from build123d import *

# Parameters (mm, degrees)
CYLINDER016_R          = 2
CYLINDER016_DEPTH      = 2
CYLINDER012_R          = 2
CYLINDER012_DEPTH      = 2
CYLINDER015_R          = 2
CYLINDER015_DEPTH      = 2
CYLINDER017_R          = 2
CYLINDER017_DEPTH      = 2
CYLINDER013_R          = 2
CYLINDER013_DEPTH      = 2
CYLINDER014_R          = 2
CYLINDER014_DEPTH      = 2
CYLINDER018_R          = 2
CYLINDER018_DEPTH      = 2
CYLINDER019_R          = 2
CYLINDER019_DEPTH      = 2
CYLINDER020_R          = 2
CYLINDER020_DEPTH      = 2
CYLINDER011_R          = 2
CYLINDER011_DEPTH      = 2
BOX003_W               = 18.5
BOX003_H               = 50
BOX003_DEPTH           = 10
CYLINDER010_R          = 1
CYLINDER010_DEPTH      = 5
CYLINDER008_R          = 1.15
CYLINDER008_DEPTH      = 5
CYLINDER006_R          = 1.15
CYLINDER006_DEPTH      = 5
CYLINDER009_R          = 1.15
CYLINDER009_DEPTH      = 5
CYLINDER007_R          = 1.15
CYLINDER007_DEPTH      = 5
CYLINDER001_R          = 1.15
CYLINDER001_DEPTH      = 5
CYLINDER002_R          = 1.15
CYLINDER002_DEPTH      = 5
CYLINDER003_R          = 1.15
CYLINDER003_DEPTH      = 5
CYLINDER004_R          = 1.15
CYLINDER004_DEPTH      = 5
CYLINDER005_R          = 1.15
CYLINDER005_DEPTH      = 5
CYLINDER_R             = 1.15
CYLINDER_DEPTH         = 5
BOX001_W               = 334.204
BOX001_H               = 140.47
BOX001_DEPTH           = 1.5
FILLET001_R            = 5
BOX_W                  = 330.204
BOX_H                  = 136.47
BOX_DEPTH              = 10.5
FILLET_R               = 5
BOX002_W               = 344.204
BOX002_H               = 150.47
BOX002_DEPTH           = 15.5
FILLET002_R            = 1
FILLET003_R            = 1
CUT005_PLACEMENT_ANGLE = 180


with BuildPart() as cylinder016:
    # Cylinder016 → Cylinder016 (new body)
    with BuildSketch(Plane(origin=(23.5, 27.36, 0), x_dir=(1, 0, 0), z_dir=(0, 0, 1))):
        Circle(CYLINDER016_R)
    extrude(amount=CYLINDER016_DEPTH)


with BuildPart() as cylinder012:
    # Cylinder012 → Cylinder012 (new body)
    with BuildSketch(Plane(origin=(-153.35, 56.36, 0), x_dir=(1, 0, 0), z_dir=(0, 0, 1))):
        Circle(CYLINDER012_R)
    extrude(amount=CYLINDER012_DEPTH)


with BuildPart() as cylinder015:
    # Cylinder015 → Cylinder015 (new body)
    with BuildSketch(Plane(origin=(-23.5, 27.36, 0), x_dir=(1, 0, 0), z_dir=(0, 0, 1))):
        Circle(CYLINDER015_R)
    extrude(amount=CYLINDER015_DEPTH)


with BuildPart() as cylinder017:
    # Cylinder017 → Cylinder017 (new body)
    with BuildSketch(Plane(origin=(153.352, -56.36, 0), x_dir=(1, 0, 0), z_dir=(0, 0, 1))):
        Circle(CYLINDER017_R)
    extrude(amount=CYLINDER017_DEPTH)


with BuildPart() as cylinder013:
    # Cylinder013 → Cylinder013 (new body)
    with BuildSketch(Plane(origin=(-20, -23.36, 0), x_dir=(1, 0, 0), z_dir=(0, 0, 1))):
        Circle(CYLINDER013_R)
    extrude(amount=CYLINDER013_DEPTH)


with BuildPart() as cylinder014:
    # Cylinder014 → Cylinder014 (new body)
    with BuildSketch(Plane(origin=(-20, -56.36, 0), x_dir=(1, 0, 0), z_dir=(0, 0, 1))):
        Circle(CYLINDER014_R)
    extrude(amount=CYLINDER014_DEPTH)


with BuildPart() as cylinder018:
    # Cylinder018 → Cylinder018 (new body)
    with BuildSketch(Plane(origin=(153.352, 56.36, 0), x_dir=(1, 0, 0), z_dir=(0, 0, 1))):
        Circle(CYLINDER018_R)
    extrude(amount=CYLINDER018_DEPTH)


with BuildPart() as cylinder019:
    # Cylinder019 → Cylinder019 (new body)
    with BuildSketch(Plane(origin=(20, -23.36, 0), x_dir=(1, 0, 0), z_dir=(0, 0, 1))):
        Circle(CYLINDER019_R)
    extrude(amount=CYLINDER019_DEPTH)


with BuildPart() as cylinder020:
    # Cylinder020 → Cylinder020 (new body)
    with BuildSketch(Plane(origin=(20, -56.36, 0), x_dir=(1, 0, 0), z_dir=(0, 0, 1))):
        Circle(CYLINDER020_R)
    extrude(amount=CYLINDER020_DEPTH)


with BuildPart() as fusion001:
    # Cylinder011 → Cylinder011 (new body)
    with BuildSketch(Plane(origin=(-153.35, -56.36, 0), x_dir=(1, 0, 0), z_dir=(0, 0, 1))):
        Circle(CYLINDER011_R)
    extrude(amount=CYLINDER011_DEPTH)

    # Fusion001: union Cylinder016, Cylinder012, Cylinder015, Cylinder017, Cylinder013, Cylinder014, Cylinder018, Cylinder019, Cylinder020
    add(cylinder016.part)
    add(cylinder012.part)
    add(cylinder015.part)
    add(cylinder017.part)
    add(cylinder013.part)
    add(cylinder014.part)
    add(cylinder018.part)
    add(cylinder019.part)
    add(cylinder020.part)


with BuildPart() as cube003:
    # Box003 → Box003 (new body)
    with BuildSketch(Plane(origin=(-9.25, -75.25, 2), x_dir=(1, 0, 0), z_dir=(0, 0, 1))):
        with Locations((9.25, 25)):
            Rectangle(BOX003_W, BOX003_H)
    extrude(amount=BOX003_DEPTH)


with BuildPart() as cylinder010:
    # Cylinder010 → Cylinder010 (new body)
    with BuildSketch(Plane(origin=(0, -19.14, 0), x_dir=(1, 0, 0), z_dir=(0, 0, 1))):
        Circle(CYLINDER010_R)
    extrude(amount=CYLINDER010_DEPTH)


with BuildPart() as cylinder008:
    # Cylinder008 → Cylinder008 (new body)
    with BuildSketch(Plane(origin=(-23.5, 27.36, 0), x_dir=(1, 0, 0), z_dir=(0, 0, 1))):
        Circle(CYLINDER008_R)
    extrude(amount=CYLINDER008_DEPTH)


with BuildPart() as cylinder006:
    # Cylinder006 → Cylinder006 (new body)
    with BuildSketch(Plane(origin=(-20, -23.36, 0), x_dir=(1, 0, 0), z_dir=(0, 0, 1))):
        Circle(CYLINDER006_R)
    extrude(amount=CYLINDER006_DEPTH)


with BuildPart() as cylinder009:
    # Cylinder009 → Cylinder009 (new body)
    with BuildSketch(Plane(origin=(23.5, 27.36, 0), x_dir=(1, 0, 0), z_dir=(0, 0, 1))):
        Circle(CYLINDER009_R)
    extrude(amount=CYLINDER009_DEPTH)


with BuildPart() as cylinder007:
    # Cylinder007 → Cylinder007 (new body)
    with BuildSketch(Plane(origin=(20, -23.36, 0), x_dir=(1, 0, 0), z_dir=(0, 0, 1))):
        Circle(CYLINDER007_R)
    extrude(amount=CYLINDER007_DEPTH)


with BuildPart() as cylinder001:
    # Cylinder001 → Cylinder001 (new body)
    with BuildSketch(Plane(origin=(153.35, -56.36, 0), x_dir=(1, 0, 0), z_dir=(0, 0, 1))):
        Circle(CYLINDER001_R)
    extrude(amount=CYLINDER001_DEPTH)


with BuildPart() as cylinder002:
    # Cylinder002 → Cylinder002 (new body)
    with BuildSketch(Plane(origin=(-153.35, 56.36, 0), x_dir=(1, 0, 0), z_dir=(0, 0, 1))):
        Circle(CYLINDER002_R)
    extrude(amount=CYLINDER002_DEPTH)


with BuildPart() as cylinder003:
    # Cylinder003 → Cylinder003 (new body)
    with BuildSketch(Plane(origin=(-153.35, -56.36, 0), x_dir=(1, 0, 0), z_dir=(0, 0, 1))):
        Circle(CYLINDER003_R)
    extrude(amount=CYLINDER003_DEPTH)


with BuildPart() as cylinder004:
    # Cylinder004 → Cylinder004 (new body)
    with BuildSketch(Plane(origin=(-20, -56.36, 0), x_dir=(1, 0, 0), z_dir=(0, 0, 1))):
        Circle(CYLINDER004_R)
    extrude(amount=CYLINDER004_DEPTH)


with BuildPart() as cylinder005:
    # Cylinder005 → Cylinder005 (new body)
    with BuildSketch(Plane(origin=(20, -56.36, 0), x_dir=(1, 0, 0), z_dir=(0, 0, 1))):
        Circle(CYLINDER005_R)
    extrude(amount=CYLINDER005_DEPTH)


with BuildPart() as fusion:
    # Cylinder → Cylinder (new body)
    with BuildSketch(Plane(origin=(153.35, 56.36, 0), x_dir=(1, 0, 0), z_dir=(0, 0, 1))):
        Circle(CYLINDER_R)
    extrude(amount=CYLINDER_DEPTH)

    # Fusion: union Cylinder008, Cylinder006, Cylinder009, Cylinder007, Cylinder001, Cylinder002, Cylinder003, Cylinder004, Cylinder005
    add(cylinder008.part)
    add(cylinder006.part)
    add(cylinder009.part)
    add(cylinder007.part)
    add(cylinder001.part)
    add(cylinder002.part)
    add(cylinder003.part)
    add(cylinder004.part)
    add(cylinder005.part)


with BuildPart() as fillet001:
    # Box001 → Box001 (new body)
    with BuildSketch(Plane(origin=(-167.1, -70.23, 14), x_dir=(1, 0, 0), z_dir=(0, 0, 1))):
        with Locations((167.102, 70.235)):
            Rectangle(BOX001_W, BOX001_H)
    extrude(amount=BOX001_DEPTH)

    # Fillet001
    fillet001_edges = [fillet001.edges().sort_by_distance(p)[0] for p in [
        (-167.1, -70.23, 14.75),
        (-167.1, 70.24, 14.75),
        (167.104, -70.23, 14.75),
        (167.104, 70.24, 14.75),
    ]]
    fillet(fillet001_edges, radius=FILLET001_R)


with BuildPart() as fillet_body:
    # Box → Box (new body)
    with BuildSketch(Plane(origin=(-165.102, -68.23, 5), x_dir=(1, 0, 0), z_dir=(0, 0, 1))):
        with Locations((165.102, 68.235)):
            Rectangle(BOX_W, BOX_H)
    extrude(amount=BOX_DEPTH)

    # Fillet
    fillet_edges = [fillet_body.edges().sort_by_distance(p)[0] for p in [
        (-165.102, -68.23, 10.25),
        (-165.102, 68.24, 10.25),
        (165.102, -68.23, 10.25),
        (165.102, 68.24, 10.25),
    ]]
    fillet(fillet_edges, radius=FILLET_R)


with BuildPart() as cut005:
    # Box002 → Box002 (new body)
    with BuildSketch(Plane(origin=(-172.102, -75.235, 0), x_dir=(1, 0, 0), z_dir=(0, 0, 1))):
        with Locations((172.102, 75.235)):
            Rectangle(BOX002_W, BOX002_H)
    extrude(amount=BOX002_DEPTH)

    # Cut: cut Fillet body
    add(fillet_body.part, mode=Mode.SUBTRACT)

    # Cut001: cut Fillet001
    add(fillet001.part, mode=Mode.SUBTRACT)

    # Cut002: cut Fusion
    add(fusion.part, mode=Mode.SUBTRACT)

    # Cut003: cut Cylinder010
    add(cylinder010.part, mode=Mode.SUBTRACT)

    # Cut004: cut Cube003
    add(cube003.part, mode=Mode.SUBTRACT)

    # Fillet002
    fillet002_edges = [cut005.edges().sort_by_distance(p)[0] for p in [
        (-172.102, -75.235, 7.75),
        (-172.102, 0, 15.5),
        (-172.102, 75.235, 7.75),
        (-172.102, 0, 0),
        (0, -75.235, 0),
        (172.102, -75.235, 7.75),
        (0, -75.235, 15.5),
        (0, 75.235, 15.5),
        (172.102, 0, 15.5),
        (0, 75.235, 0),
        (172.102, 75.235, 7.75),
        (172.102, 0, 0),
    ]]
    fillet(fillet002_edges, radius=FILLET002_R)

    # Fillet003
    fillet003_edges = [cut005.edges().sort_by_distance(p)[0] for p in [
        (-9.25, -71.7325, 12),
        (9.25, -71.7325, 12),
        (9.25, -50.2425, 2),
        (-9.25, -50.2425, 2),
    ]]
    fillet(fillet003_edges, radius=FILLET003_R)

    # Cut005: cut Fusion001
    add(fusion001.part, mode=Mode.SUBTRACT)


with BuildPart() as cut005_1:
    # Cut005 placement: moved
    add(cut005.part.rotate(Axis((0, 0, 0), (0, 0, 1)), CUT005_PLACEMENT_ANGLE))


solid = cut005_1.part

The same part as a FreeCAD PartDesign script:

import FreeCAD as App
import Part
import Sketcher


def edges_at(feature, points):
    """Names of the edges that pass closest to the given points."""
    edges = feature.Shape.Edges
    near = lambda p: min(range(len(edges)), key=lambda i: edges[i].distToShape(Part.Vertex(*p))[0])
    return sorted({f"Edge{near(p) + 1}" for p in points})

doc = App.newDocument("Part")
body = doc.addObject("PartDesign::Body", "Body")

# Sketch on XY plane
sketch1 = body.newObject("Sketcher::SketchObject", "Sketch")
sketch1.AttachmentSupport = (doc.getObject("XY_Plane"), [""])
sketch1.MapMode = "FlatFace"
sketch1.addGeometry(Part.Circle(App.Vector(23.5, 27.4, 0), App.Vector(0, 0, 1), 2), False)
sketch1.addConstraint([
    Sketcher.Constraint("Diameter", 0, 4.0),
    Sketcher.Constraint("DistanceX", -1, 1, 0, 3, 23.5),
    Sketcher.Constraint("DistanceY", -1, 1, 0, 3, 27.36),
])
pad1 = body.newObject("PartDesign::Pad", "Pad")
pad1.Profile = sketch1
pad1.Length = 2
body2 = doc.addObject("PartDesign::Body", "Body001")

# Sketch on XY plane
sketch2 = body2.newObject("Sketcher::SketchObject", "Sketch001")
sketch2.AttachmentSupport = (doc.getObject("XY_Plane001"), [""])
sketch2.MapMode = "FlatFace"
sketch2.addGeometry(Part.Circle(App.Vector(-153.3, 56.4, 0), App.Vector(0, 0, 1), 2), False)
sketch2.addConstraint([
    Sketcher.Constraint("Diameter", 0, 4.0),
    Sketcher.Constraint("DistanceX", 0, 3, -1, 1, 153.35),
    Sketcher.Constraint("DistanceY", -1, 1, 0, 3, 56.36),
])
pad2 = body2.newObject("PartDesign::Pad", "Pad001")
pad2.Profile = sketch2
pad2.Length = 2
body3 = doc.addObject("PartDesign::Body", "Body002")

# Sketch on XY plane
sketch3 = body3.newObject("Sketcher::SketchObject", "Sketch002")
sketch3.AttachmentSupport = (doc.getObject("XY_Plane002"), [""])
sketch3.MapMode = "FlatFace"
sketch3.addGeometry(Part.Circle(App.Vector(-23.5, 27.4, 0), App.Vector(0, 0, 1), 2), False)
sketch3.addConstraint([
    Sketcher.Constraint("Diameter", 0, 4.0),
    Sketcher.Constraint("DistanceX", 0, 3, -1, 1, 23.5),
    Sketcher.Constraint("DistanceY", -1, 1, 0, 3, 27.36),
])
pad3 = body3.newObject("PartDesign::Pad", "Pad002")
pad3.Profile = sketch3
pad3.Length = 2
body4 = doc.addObject("PartDesign::Body", "Body003")

# Sketch on XY plane
sketch4 = body4.newObject("Sketcher::SketchObject", "Sketch003")
sketch4.AttachmentSupport = (doc.getObject("XY_Plane003"), [""])
sketch4.MapMode = "FlatFace"
sketch4.addGeometry(Part.Circle(App.Vector(153.4, -56.4, 0), App.Vector(0, 0, 1), 2), False)
sketch4.addConstraint([
    Sketcher.Constraint("Diameter", 0, 4.0),
    Sketcher.Constraint("DistanceY", 0, 3, -1, 1, 56.36),
    Sketcher.Constraint("DistanceX", -1, 1, 0, 3, 153.352),
])
pad4 = body4.newObject("PartDesign::Pad", "Pad003")
pad4.Profile = sketch4
pad4.Length = 2
body5 = doc.addObject("PartDesign::Body", "Body004")

# Sketch on XY plane
sketch5 = body5.newObject("Sketcher::SketchObject", "Sketch004")
sketch5.AttachmentSupport = (doc.getObject("XY_Plane004"), [""])
sketch5.MapMode = "FlatFace"
sketch5.addGeometry(Part.Circle(App.Vector(-20, -23.4, 0), App.Vector(0, 0, 1), 2), False)
sketch5.addConstraint([
    Sketcher.Constraint("Diameter", 0, 4.0),
    Sketcher.Constraint("DistanceX", 0, 3, -1, 1, 20.0),
    Sketcher.Constraint("DistanceY", 0, 3, -1, 1, 23.36),
])
pad5 = body5.newObject("PartDesign::Pad", "Pad004")
pad5.Profile = sketch5
pad5.Length = 2
body6 = doc.addObject("PartDesign::Body", "Body005")

# Sketch on XY plane
sketch6 = body6.newObject("Sketcher::SketchObject", "Sketch005")
sketch6.AttachmentSupport = (doc.getObject("XY_Plane005"), [""])
sketch6.MapMode = "FlatFace"
sketch6.addGeometry(Part.Circle(App.Vector(-20, -56.4, 0), App.Vector(0, 0, 1), 2), False)
sketch6.addConstraint([
    Sketcher.Constraint("Diameter", 0, 4.0),
    Sketcher.Constraint("DistanceX", 0, 3, -1, 1, 20.0),
    Sketcher.Constraint("DistanceY", 0, 3, -1, 1, 56.36),
])
pad6 = body6.newObject("PartDesign::Pad", "Pad005")
pad6.Profile = sketch6
pad6.Length = 2
body7 = doc.addObject("PartDesign::Body", "Body006")

# Sketch on XY plane
sketch7 = body7.newObject("Sketcher::SketchObject", "Sketch006")
sketch7.AttachmentSupport = (doc.getObject("XY_Plane006"), [""])
sketch7.MapMode = "FlatFace"
sketch7.addGeometry(Part.Circle(App.Vector(153.4, 56.4, 0), App.Vector(0, 0, 1), 2), False)
sketch7.addConstraint([
    Sketcher.Constraint("Diameter", 0, 4.0),
    Sketcher.Constraint("DistanceY", -1, 1, 0, 3, 56.36),
    Sketcher.Constraint("DistanceX", -1, 1, 0, 3, 153.352),
])
pad7 = body7.newObject("PartDesign::Pad", "Pad006")
pad7.Profile = sketch7
pad7.Length = 2
body8 = doc.addObject("PartDesign::Body", "Body007")

# Sketch on XY plane
sketch8 = body8.newObject("Sketcher::SketchObject", "Sketch007")
sketch8.AttachmentSupport = (doc.getObject("XY_Plane007"), [""])
sketch8.MapMode = "FlatFace"
sketch8.addGeometry(Part.Circle(App.Vector(20, -23.4, 0), App.Vector(0, 0, 1), 2), False)
sketch8.addConstraint([
    Sketcher.Constraint("Diameter", 0, 4.0),
    Sketcher.Constraint("DistanceX", -1, 1, 0, 3, 20.0),
    Sketcher.Constraint("DistanceY", 0, 3, -1, 1, 23.36),
])
pad8 = body8.newObject("PartDesign::Pad", "Pad007")
pad8.Profile = sketch8
pad8.Length = 2
body9 = doc.addObject("PartDesign::Body", "Body008")

# Sketch on XY plane
sketch9 = body9.newObject("Sketcher::SketchObject", "Sketch008")
sketch9.AttachmentSupport = (doc.getObject("XY_Plane008"), [""])
sketch9.MapMode = "FlatFace"
sketch9.addGeometry(Part.Circle(App.Vector(20, -56.4, 0), App.Vector(0, 0, 1), 2), False)
sketch9.addConstraint([
    Sketcher.Constraint("Diameter", 0, 4.0),
    Sketcher.Constraint("DistanceX", -1, 1, 0, 3, 20.0),
    Sketcher.Constraint("DistanceY", 0, 3, -1, 1, 56.36),
])
pad9 = body9.newObject("PartDesign::Pad", "Pad008")
pad9.Profile = sketch9
pad9.Length = 2
body10 = doc.addObject("PartDesign::Body", "Body009")
body10.AllowCompound = True

# Sketch on XY plane
sketch10 = body10.newObject("Sketcher::SketchObject", "Sketch009")
sketch10.AttachmentSupport = (doc.getObject("XY_Plane009"), [""])
sketch10.MapMode = "FlatFace"
sketch10.addGeometry(Part.Circle(App.Vector(-153.3, -56.4, 0), App.Vector(0, 0, 1), 2), False)
sketch10.addConstraint([
    Sketcher.Constraint("Diameter", 0, 4.0),
    Sketcher.Constraint("DistanceX", 0, 3, -1, 1, 153.35),
    Sketcher.Constraint("DistanceY", 0, 3, -1, 1, 56.36),
])
pad10 = body10.newObject("PartDesign::Pad", "Pad009")
pad10.Profile = sketch10
pad10.Length = 2
doc.recompute()

boolean = body10.newObject("PartDesign::Boolean", "Boolean")
boolean.Type = "Fuse"
boolean.addObjects([body])
doc.recompute()

boolean2 = body10.newObject("PartDesign::Boolean", "Boolean001")
boolean2.Type = "Fuse"
boolean2.addObjects([body2])
doc.recompute()

boolean3 = body10.newObject("PartDesign::Boolean", "Boolean002")
boolean3.Type = "Fuse"
boolean3.addObjects([body3])
doc.recompute()

boolean4 = body10.newObject("PartDesign::Boolean", "Boolean003")
boolean4.Type = "Fuse"
boolean4.addObjects([body4])
doc.recompute()

boolean5 = body10.newObject("PartDesign::Boolean", "Boolean004")
boolean5.Type = "Fuse"
boolean5.addObjects([body5])
doc.recompute()

boolean6 = body10.newObject("PartDesign::Boolean", "Boolean005")
boolean6.Type = "Fuse"
boolean6.addObjects([body6])
doc.recompute()

boolean7 = body10.newObject("PartDesign::Boolean", "Boolean006")
boolean7.Type = "Fuse"
boolean7.addObjects([body7])
doc.recompute()

boolean8 = body10.newObject("PartDesign::Boolean", "Boolean007")
boolean8.Type = "Fuse"
boolean8.addObjects([body8])
doc.recompute()

boolean9 = body10.newObject("PartDesign::Boolean", "Boolean008")
boolean9.Type = "Fuse"
boolean9.addObjects([body9])
body11 = doc.addObject("PartDesign::Body", "Body010")

# Sketch on XY plane
sketch11 = body11.newObject("Sketcher::SketchObject", "Sketch010")
sketch11.AttachmentSupport = (doc.getObject("XY_Plane010"), [""])
sketch11.MapMode = "FlatFace"
sketch11.AttachmentOffset = App.Placement(App.Vector(0, 0, 2), App.Rotation())
sketch11.addGeometry([
    Part.LineSegment(App.Vector(-9, -25, 0), App.Vector(-9, -75, 0)),
    Part.LineSegment(App.Vector(-9, -75, 0), App.Vector(9, -75, 0)),
    Part.LineSegment(App.Vector(9, -75, 0), App.Vector(9, -25, 0)),
    Part.LineSegment(App.Vector(9, -25, 0), App.Vector(-9, -25, 0)),
], False)
sketch11.addConstraint([
    Sketcher.Constraint("Coincident", 0, 2, 1, 1),
    Sketcher.Constraint("Coincident", 1, 2, 2, 1),
    Sketcher.Constraint("Coincident", 2, 2, 3, 1),
    Sketcher.Constraint("Coincident", 3, 2, 0, 1),
    Sketcher.Constraint("Vertical", 0),
    Sketcher.Constraint("Horizontal", 1),
    Sketcher.Constraint("Vertical", 2),
    Sketcher.Constraint("Horizontal", 3),
    Sketcher.Constraint("DistanceY", 0, 2, 0, 1, 50.0),
    Sketcher.Constraint("DistanceX", 1, 1, 1, 2, 18.5),
    Sketcher.Constraint("DistanceX", 0, 2, -1, 1, 9.25),
    Sketcher.Constraint("DistanceY", 0, 2, -1, 1, 75.25),
])
pad11 = body11.newObject("PartDesign::Pad", "Pad010")
pad11.Profile = sketch11
pad11.Length = 10
body12 = doc.addObject("PartDesign::Body", "Body011")

# Sketch on XY plane
sketch12 = body12.newObject("Sketcher::SketchObject", "Sketch011")
sketch12.AttachmentSupport = (doc.getObject("XY_Plane011"), [""])
sketch12.MapMode = "FlatFace"
sketch12.addGeometry(Part.Circle(App.Vector(0, -19.1, 0), App.Vector(0, 0, 1), 1), False)
sketch12.addConstraint([
    Sketcher.Constraint("PointOnObject", 0, 3, -2),
    Sketcher.Constraint("Diameter", 0, 2.0),
    Sketcher.Constraint("DistanceY", 0, 3, -1, 1, 19.14),
])
pad12 = body12.newObject("PartDesign::Pad", "Pad011")
pad12.Profile = sketch12
pad12.Length = 5
body13 = doc.addObject("PartDesign::Body", "Body012")

# Sketch on XY plane
sketch13 = body13.newObject("Sketcher::SketchObject", "Sketch012")
sketch13.AttachmentSupport = (doc.getObject("XY_Plane012"), [""])
sketch13.MapMode = "FlatFace"
sketch13.addGeometry(Part.Circle(App.Vector(-23.5, 27.4, 0), App.Vector(0, 0, 1), 1.1), False)
sketch13.addConstraint([
    Sketcher.Constraint("Diameter", 0, 2.3),
    Sketcher.Constraint("DistanceX", 0, 3, -1, 1, 23.5),
    Sketcher.Constraint("DistanceY", -1, 1, 0, 3, 27.36),
])
pad13 = body13.newObject("PartDesign::Pad", "Pad012")
pad13.Profile = sketch13
pad13.Length = 5
body14 = doc.addObject("PartDesign::Body", "Body013")

# Sketch on XY plane
sketch14 = body14.newObject("Sketcher::SketchObject", "Sketch013")
sketch14.AttachmentSupport = (doc.getObject("XY_Plane013"), [""])
sketch14.MapMode = "FlatFace"
sketch14.addGeometry(Part.Circle(App.Vector(-20, -23.4, 0), App.Vector(0, 0, 1), 1.1), False)
sketch14.addConstraint([
    Sketcher.Constraint("Diameter", 0, 2.3),
    Sketcher.Constraint("DistanceX", 0, 3, -1, 1, 20.0),
    Sketcher.Constraint("DistanceY", 0, 3, -1, 1, 23.36),
])
pad14 = body14.newObject("PartDesign::Pad", "Pad013")
pad14.Profile = sketch14
pad14.Length = 5
body15 = doc.addObject("PartDesign::Body", "Body014")

# Sketch on XY plane
sketch15 = body15.newObject("Sketcher::SketchObject", "Sketch014")
sketch15.AttachmentSupport = (doc.getObject("XY_Plane014"), [""])
sketch15.MapMode = "FlatFace"
sketch15.addGeometry(Part.Circle(App.Vector(23.5, 27.4, 0), App.Vector(0, 0, 1), 1.1), False)
sketch15.addConstraint([
    Sketcher.Constraint("Diameter", 0, 2.3),
    Sketcher.Constraint("DistanceX", -1, 1, 0, 3, 23.5),
    Sketcher.Constraint("DistanceY", -1, 1, 0, 3, 27.36),
])
pad15 = body15.newObject("PartDesign::Pad", "Pad014")
pad15.Profile = sketch15
pad15.Length = 5
body16 = doc.addObject("PartDesign::Body", "Body015")

# Sketch on XY plane
sketch16 = body16.newObject("Sketcher::SketchObject", "Sketch015")
sketch16.AttachmentSupport = (doc.getObject("XY_Plane015"), [""])
sketch16.MapMode = "FlatFace"
sketch16.addGeometry(Part.Circle(App.Vector(20, -23.4, 0), App.Vector(0, 0, 1), 1.1), False)
sketch16.addConstraint([
    Sketcher.Constraint("Diameter", 0, 2.3),
    Sketcher.Constraint("DistanceX", -1, 1, 0, 3, 20.0),
    Sketcher.Constraint("DistanceY", 0, 3, -1, 1, 23.36),
])
pad16 = body16.newObject("PartDesign::Pad", "Pad015")
pad16.Profile = sketch16
pad16.Length = 5
body17 = doc.addObject("PartDesign::Body", "Body016")

# Sketch on XY plane
sketch17 = body17.newObject("Sketcher::SketchObject", "Sketch016")
sketch17.AttachmentSupport = (doc.getObject("XY_Plane016"), [""])
sketch17.MapMode = "FlatFace"
sketch17.addGeometry(Part.Circle(App.Vector(153.3, -56.4, 0), App.Vector(0, 0, 1), 1.1), False)
sketch17.addConstraint([
    Sketcher.Constraint("Diameter", 0, 2.3),
    Sketcher.Constraint("DistanceX", -1, 1, 0, 3, 153.35),
    Sketcher.Constraint("DistanceY", 0, 3, -1, 1, 56.36),
])
pad17 = body17.newObject("PartDesign::Pad", "Pad016")
pad17.Profile = sketch17
pad17.Length = 5
body18 = doc.addObject("PartDesign::Body", "Body017")

# Sketch on XY plane
sketch18 = body18.newObject("Sketcher::SketchObject", "Sketch017")
sketch18.AttachmentSupport = (doc.getObject("XY_Plane017"), [""])
sketch18.MapMode = "FlatFace"
sketch18.addGeometry(Part.Circle(App.Vector(-153.3, 56.4, 0), App.Vector(0, 0, 1), 1.1), False)
sketch18.addConstraint([
    Sketcher.Constraint("Diameter", 0, 2.3),
    Sketcher.Constraint("DistanceX", 0, 3, -1, 1, 153.35),
    Sketcher.Constraint("DistanceY", -1, 1, 0, 3, 56.36),
])
pad18 = body18.newObject("PartDesign::Pad", "Pad017")
pad18.Profile = sketch18
pad18.Length = 5
body19 = doc.addObject("PartDesign::Body", "Body018")

# Sketch on XY plane
sketch19 = body19.newObject("Sketcher::SketchObject", "Sketch018")
sketch19.AttachmentSupport = (doc.getObject("XY_Plane018"), [""])
sketch19.MapMode = "FlatFace"
sketch19.addGeometry(Part.Circle(App.Vector(-153.3, -56.4, 0), App.Vector(0, 0, 1), 1.1), False)
sketch19.addConstraint([
    Sketcher.Constraint("Diameter", 0, 2.3),
    Sketcher.Constraint("DistanceX", 0, 3, -1, 1, 153.35),
    Sketcher.Constraint("DistanceY", 0, 3, -1, 1, 56.36),
])
pad19 = body19.newObject("PartDesign::Pad", "Pad018")
pad19.Profile = sketch19
pad19.Length = 5
body20 = doc.addObject("PartDesign::Body", "Body019")

# Sketch on XY plane
sketch20 = body20.newObject("Sketcher::SketchObject", "Sketch019")
sketch20.AttachmentSupport = (doc.getObject("XY_Plane019"), [""])
sketch20.MapMode = "FlatFace"
sketch20.addGeometry(Part.Circle(App.Vector(-20, -56.4, 0), App.Vector(0, 0, 1), 1.1), False)
sketch20.addConstraint([
    Sketcher.Constraint("Diameter", 0, 2.3),
    Sketcher.Constraint("DistanceX", 0, 3, -1, 1, 20.0),
    Sketcher.Constraint("DistanceY", 0, 3, -1, 1, 56.36),
])
pad20 = body20.newObject("PartDesign::Pad", "Pad019")
pad20.Profile = sketch20
pad20.Length = 5
body21 = doc.addObject("PartDesign::Body", "Body020")

# Sketch on XY plane
sketch21 = body21.newObject("Sketcher::SketchObject", "Sketch020")
sketch21.AttachmentSupport = (doc.getObject("XY_Plane020"), [""])
sketch21.MapMode = "FlatFace"
sketch21.addGeometry(Part.Circle(App.Vector(20, -56.4, 0), App.Vector(0, 0, 1), 1.1), False)
sketch21.addConstraint([
    Sketcher.Constraint("Diameter", 0, 2.3),
    Sketcher.Constraint("DistanceX", -1, 1, 0, 3, 20.0),
    Sketcher.Constraint("DistanceY", 0, 3, -1, 1, 56.36),
])
pad21 = body21.newObject("PartDesign::Pad", "Pad020")
pad21.Profile = sketch21
pad21.Length = 5
body22 = doc.addObject("PartDesign::Body", "Body021")
body22.AllowCompound = True

# Sketch on XY plane
sketch22 = body22.newObject("Sketcher::SketchObject", "Sketch021")
sketch22.AttachmentSupport = (doc.getObject("XY_Plane021"), [""])
sketch22.MapMode = "FlatFace"
sketch22.addGeometry(Part.Circle(App.Vector(153.3, 56.4, 0), App.Vector(0, 0, 1), 1.1), False)
sketch22.addConstraint([
    Sketcher.Constraint("Diameter", 0, 2.3),
    Sketcher.Constraint("DistanceX", -1, 1, 0, 3, 153.35),
    Sketcher.Constraint("DistanceY", -1, 1, 0, 3, 56.36),
])
pad22 = body22.newObject("PartDesign::Pad", "Pad021")
pad22.Profile = sketch22
pad22.Length = 5
doc.recompute()

boolean10 = body22.newObject("PartDesign::Boolean", "Boolean009")
boolean10.Type = "Fuse"
boolean10.addObjects([body13])
doc.recompute()

boolean11 = body22.newObject("PartDesign::Boolean", "Boolean010")
boolean11.Type = "Fuse"
boolean11.addObjects([body14])
doc.recompute()

boolean12 = body22.newObject("PartDesign::Boolean", "Boolean011")
boolean12.Type = "Fuse"
boolean12.addObjects([body15])
doc.recompute()

boolean13 = body22.newObject("PartDesign::Boolean", "Boolean012")
boolean13.Type = "Fuse"
boolean13.addObjects([body16])
doc.recompute()

boolean14 = body22.newObject("PartDesign::Boolean", "Boolean013")
boolean14.Type = "Fuse"
boolean14.addObjects([body17])
doc.recompute()

boolean15 = body22.newObject("PartDesign::Boolean", "Boolean014")
boolean15.Type = "Fuse"
boolean15.addObjects([body18])
doc.recompute()

boolean16 = body22.newObject("PartDesign::Boolean", "Boolean015")
boolean16.Type = "Fuse"
boolean16.addObjects([body19])
doc.recompute()

boolean17 = body22.newObject("PartDesign::Boolean", "Boolean016")
boolean17.Type = "Fuse"
boolean17.addObjects([body20])
doc.recompute()

boolean18 = body22.newObject("PartDesign::Boolean", "Boolean017")
boolean18.Type = "Fuse"
boolean18.addObjects([body21])
body23 = doc.addObject("PartDesign::Body", "Body022")

# Sketch on XY plane
sketch23 = body23.newObject("Sketcher::SketchObject", "Sketch022")
sketch23.AttachmentSupport = (doc.getObject("XY_Plane022"), [""])
sketch23.MapMode = "FlatFace"
sketch23.AttachmentOffset = App.Placement(App.Vector(0, 0, 14), App.Rotation())
sketch23.addGeometry([
    Part.LineSegment(App.Vector(-167, 70, 0), App.Vector(-167, -70, 0)),
    Part.LineSegment(App.Vector(-167, -70, 0), App.Vector(167, -70, 0)),
    Part.LineSegment(App.Vector(167, -70, 0), App.Vector(167, 70, 0)),
    Part.LineSegment(App.Vector(167, 70, 0), App.Vector(-167, 70, 0)),
], False)
sketch23.addConstraint([
    Sketcher.Constraint("Coincident", 0, 2, 1, 1),
    Sketcher.Constraint("Coincident", 1, 2, 2, 1),
    Sketcher.Constraint("Coincident", 2, 2, 3, 1),
    Sketcher.Constraint("Coincident", 3, 2, 0, 1),
    Sketcher.Constraint("Vertical", 0),
    Sketcher.Constraint("Horizontal", 1),
    Sketcher.Constraint("Vertical", 2),
    Sketcher.Constraint("Horizontal", 3),
    Sketcher.Constraint("DistanceY", 0, 2, 0, 1, 140.47),
    Sketcher.Constraint("DistanceX", 0, 2, -1, 1, 167.1),
    Sketcher.Constraint("DistanceX", 1, 1, 1, 2, 334.204),
    Sketcher.Constraint("DistanceY", 0, 2, -1, 1, 70.23),
])
pad23 = body23.newObject("PartDesign::Pad", "Pad022")
pad23.Profile = sketch23
pad23.Length = 1.5
doc.recompute()

fillet = body23.newObject("PartDesign::Fillet", "Fillet")
fillet.Base = (pad23, edges_at(pad23, [
    (-167.1, -70.23, 14.75),
    (-167.1, 70.24, 14.75),
    (167.104, -70.23, 14.75),
    (167.104, 70.24, 14.75),
]))
fillet.Radius = 5
body24 = doc.addObject("PartDesign::Body", "Body023")

# Sketch on XY plane
sketch24 = body24.newObject("Sketcher::SketchObject", "Sketch023")
sketch24.AttachmentSupport = (doc.getObject("XY_Plane023"), [""])
sketch24.MapMode = "FlatFace"
sketch24.AttachmentOffset = App.Placement(App.Vector(0, 0, 5), App.Rotation())
sketch24.addGeometry([
    Part.LineSegment(App.Vector(-165, 68, 0), App.Vector(-165, -68, 0)),
    Part.LineSegment(App.Vector(-165, -68, 0), App.Vector(165, -68, 0)),
    Part.LineSegment(App.Vector(165, -68, 0), App.Vector(165, 68, 0)),
    Part.LineSegment(App.Vector(165, 68, 0), App.Vector(-165, 68, 0)),
], False)
sketch24.addConstraint([
    Sketcher.Constraint("Coincident", 0, 2, 1, 1),
    Sketcher.Constraint("Coincident", 1, 2, 2, 1),
    Sketcher.Constraint("Coincident", 2, 2, 3, 1),
    Sketcher.Constraint("Coincident", 3, 2, 0, 1),
    Sketcher.Constraint("Vertical", 0),
    Sketcher.Constraint("Horizontal", 1),
    Sketcher.Constraint("Vertical", 2),
    Sketcher.Constraint("Horizontal", 3),
    Sketcher.Constraint("DistanceY", 0, 2, 0, 1, 136.47),
    Sketcher.Constraint("DistanceX", 1, 1, 1, 2, 330.204),
    Sketcher.Constraint("DistanceY", 0, 2, -1, 1, 68.23),
    Sketcher.Constraint("DistanceX", 0, 2, -1, 1, 165.102),
])
pad24 = body24.newObject("PartDesign::Pad", "Pad023")
pad24.Profile = sketch24
pad24.Length = 10.5
doc.recompute()

fillet2 = body24.newObject("PartDesign::Fillet", "Fillet001")
fillet2.Base = (pad24, edges_at(pad24, [
    (-165.102, -68.23, 10.25),
    (-165.102, 68.24, 10.25),
    (165.102, -68.23, 10.25),
    (165.102, 68.24, 10.25),
]))
fillet2.Radius = 5
body25 = doc.addObject("PartDesign::Body", "Body024")

# Sketch on XY plane
sketch25 = body25.newObject("Sketcher::SketchObject", "Sketch024")
sketch25.AttachmentSupport = (doc.getObject("XY_Plane024"), [""])
sketch25.MapMode = "FlatFace"
sketch25.addGeometry([
    Part.LineSegment(App.Vector(-172, 75, 0), App.Vector(-172, -75, 0)),
    Part.LineSegment(App.Vector(-172, -75, 0), App.Vector(172, -75, 0)),
    Part.LineSegment(App.Vector(172, -75, 0), App.Vector(172, 75, 0)),
    Part.LineSegment(App.Vector(172, 75, 0), App.Vector(-172, 75, 0)),
], False)
sketch25.addConstraint([
    Sketcher.Constraint("Coincident", 0, 2, 1, 1),
    Sketcher.Constraint("Coincident", 1, 2, 2, 1),
    Sketcher.Constraint("Coincident", 2, 2, 3, 1),
    Sketcher.Constraint("Coincident", 3, 2, 0, 1),
    Sketcher.Constraint("Vertical", 0),
    Sketcher.Constraint("Horizontal", 1),
    Sketcher.Constraint("Vertical", 2),
    Sketcher.Constraint("Horizontal", 3),
    Sketcher.Constraint("Symmetric", 0, 2, 2, 2, -1, 1),
    Sketcher.Constraint("DistanceY", 0, 2, 0, 1, 150.47),
    Sketcher.Constraint("DistanceX", 1, 1, 1, 2, 344.204),
])
pad25 = body25.newObject("PartDesign::Pad", "Pad024")
pad25.Profile = sketch25
pad25.Length = 15.5
doc.recompute()

boolean19 = body25.newObject("PartDesign::Boolean", "Boolean018")
boolean19.Type = "Cut"
boolean19.addObjects([body24])
doc.recompute()

boolean20 = body25.newObject("PartDesign::Boolean", "Boolean019")
boolean20.Type = "Cut"
boolean20.addObjects([body23])
doc.recompute()

boolean21 = body25.newObject("PartDesign::Boolean", "Boolean020")
boolean21.Type = "Cut"
boolean21.addObjects([body22])
doc.recompute()

boolean22 = body25.newObject("PartDesign::Boolean", "Boolean021")
boolean22.Type = "Cut"
boolean22.addObjects([body12])
doc.recompute()

boolean23 = body25.newObject("PartDesign::Boolean", "Boolean022")
boolean23.Type = "Cut"
boolean23.addObjects([body11])
doc.recompute()

fillet3 = body25.newObject("PartDesign::Fillet", "Fillet002")
fillet3.Base = (boolean23, edges_at(boolean23, [
    (-172.102, -75.235, 7.75),
    (-172.102, 0, 15.5),
    (-172.102, 75.235, 7.75),
    (-172.102, 0, 0),
    (0, -75.235, 0),
    (172.102, -75.235, 7.75),
    (0, -75.235, 15.5),
    (0, 75.235, 15.5),
    (172.102, 0, 15.5),
    (0, 75.235, 0),
    (172.102, 75.235, 7.75),
    (172.102, 0, 0),
]))
fillet3.Radius = 1
doc.recompute()

fillet4 = body25.newObject("PartDesign::Fillet", "Fillet003")
fillet4.Base = (fillet3, edges_at(fillet3, [
    (-9.25, -71.733, 12),
    (9.25, -71.733, 12),
    (9.25, -50.242, 2),
    (-9.25, -50.242, 2),
]))
fillet4.Radius = 1
doc.recompute()

boolean24 = body25.newObject("PartDesign::Boolean", "Boolean023")
boolean24.Type = "Cut"
boolean24.addObjects([body10])
body26 = doc.addObject("PartDesign::Body", "Body025")
doc.recompute()

body25.Placement = App.Placement(App.Vector(0, 0, 0), App.Rotation(App.Vector(0, 0, 1), 180))
boolean25 = body26.newObject("PartDesign::Boolean", "Boolean024")
boolean25.Type = "Fuse"
boolean25.addObjects([body25])

doc.recompute()
